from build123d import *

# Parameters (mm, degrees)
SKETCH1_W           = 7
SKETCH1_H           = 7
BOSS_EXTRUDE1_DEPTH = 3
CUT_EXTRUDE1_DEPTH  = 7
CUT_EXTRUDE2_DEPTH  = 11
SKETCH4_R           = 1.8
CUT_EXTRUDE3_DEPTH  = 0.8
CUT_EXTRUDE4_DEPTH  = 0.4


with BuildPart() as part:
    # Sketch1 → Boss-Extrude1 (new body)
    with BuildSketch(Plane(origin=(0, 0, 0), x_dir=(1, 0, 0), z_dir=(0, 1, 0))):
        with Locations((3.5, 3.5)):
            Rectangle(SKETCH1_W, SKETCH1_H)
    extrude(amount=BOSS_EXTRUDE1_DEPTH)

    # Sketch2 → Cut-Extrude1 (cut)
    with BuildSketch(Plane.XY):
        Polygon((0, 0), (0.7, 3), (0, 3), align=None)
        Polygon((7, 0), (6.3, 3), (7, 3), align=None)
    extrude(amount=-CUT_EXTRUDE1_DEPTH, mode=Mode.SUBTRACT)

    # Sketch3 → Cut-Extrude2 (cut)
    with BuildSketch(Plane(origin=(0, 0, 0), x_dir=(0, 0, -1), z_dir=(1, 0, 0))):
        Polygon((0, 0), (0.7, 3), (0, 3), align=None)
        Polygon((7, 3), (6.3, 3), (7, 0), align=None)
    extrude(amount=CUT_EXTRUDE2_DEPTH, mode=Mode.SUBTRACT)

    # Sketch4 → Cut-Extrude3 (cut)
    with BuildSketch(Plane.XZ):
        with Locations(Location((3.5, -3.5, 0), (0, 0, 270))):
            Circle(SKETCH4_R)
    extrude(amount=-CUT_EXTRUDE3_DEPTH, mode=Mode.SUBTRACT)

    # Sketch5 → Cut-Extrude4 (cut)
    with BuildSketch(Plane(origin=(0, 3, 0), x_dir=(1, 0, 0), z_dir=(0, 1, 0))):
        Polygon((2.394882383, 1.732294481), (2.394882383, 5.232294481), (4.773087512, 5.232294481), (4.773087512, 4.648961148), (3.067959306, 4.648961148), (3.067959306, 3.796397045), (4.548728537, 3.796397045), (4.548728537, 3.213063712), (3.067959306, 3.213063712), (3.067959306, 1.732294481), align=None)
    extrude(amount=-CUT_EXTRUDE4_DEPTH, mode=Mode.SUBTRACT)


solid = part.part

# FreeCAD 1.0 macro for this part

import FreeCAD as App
import Part
import Sketcher

V = App.Vector
Q = App.Units.Quantity


def add_polygon(sketch, points):
    """Adds a closed chain of lines whose ends are joined by coincident constraints."""
    first, n = sketch.GeometryCount, len(points)
    for a, b in zip(points, points[1:] + points[:1]):
        sketch.addGeometry(Part.LineSegment(App.Vector(*a, 0), App.Vector(*b, 0)), False)
    for i in range(n):
        sketch.addConstraint(Sketcher.Constraint("Coincident", first + i, 2, first + (i + 1) % n, 1))

doc = App.newDocument("Part")
body = doc.addObject("PartDesign::Body", "Body")

sketch1 = body.newObject("Sketcher::SketchObject", "Sketch")
sketch1.AttachmentSupport = (doc.getObject("XZ_Plane"), [""])
sketch1.MapMode = "FlatFace"
add_polygon(sketch1, [(0, -7), (0, 0), (7, 0), (7, -7)])
sketch1.addConstraint(Sketcher.Constraint("Vertical", 0))
sketch1.addConstraint(Sketcher.Constraint("Horizontal", 1))
sketch1.addConstraint(Sketcher.Constraint("Vertical", 2))
sketch1.addConstraint(Sketcher.Constraint("Horizontal", 3))
sketch1.addConstraint(Sketcher.Constraint("Coincident", 0, 2, -1, 1))
sketch1.addConstraint(Sketcher.Constraint("Equal", 3, 0))
sketch1.addConstraint(Sketcher.Constraint("DistanceX", 1, 1, 1, 2, Q("7 mm")))
pad1 = body.newObject("PartDesign::Pad", "Pad")
pad1.Profile = sketch1
pad1.Length = 3
pad1.Reversed = True

sketch2 = body.newObject("Sketcher::SketchObject", "Sketch001")
sketch2.AttachmentSupport = (doc.getObject("XY_Plane"), [""])
sketch2.MapMode = "FlatFace"
add_polygon(sketch2, [(0, 0), (0.7, 3), (0, 3)])
add_polygon(sketch2, [(6.3, 3), (7, 0), (7, 3)])
sketch2.addConstraint(Sketcher.Constraint("Horizontal", 1))
sketch2.addConstraint(Sketcher.Constraint("Vertical", 2))
sketch2.addConstraint(Sketcher.Constraint("Vertical", 4))
sketch2.addConstraint(Sketcher.Constraint("Horizontal", 5))
sketch2.addConstraint(Sketcher.Constraint("Coincident", 2, 2, -1, 1))
sketch2.addConstraint(Sketcher.Constraint("PointOnObject", 3, 2, -1))
sketch2.addConstraint(Sketcher.Constraint("Horizontal", 1, 2, 4, 2))
sketch2.addConstraint(Sketcher.Constraint("Equal", 1, 5))
sketch2.addConstraint(Sketcher.Constraint("DistanceY", 2, 2, 2, 1, Q("3 mm")))
sketch2.addConstraint(Sketcher.Constraint("DistanceX", 1, 2, 1, 1, Q("0.7 mm")))
sketch2.addConstraint(Sketcher.Constraint("DistanceX", -1, 1, 3, 2, Q("7 mm")))
pocket1 = body.newObject("PartDesign::Pocket", "Pocket")
pocket1.Profile = sketch2
pocket1.Length = 7

sketch3 = body.newObject("Sketcher::SketchObject", "Sketch002")
sketch3.AttachmentSupport = (doc.getObject("YZ_Plane"), [""])
sketch3.MapMode = "FlatFace"
add_polygon(sketch3, [(0, 0), (3, -0.7), (3, 0)])
add_polygon(sketch3, [(3, -7), (3, -6.3), (0, -7)])
sketch3.addConstraint(Sketcher.Constraint("Vertical", 1))
sketch3.addConstraint(Sketcher.Constraint("Horizontal", 2))
sketch3.addConstraint(Sketcher.Constraint("Vertical", 3))
sketch3.addConstraint(Sketcher.Constraint("Horizontal", 5))
sketch3.addConstraint(Sketcher.Constraint("Coincident", 2, 2, -1, 1))
sketch3.addConstraint(Sketcher.Constraint("PointOnObject", 4, 2, -2))
sketch3.addConstraint(Sketcher.Constraint("Vertical", 1, 2, 3, 2))
sketch3.addConstraint(Sketcher.Constraint("Equal", 1, 3))
sketch3.addConstraint(Sketcher.Constraint("DistanceX", 2, 2, 2, 1, Q("3 mm")))
sketch3.addConstraint(Sketcher.Constraint("DistanceY", 1, 1, 1, 2, Q("0.7 mm")))
sketch3.addConstraint(Sketcher.Constraint("DistanceY", 4, 2, -1, 1, Q("7 mm")))
pocket2 = body.newObject("PartDesign::Pocket", "Pocket001")
pocket2.Profile = sketch3
pocket2.Length = 11
pocket2.Reversed = True

sketch4 = body.newObject("Sketcher::SketchObject", "Sketch003")
sketch4.AttachmentSupport = (doc.getObject("XZ_Plane"), [""])
sketch4.MapMode = "FlatFace"
sketch4.addGeometry(Part.Circle(V(3.5, -3.5, 0), V(0, 0, 1), 1.8), False)
sketch4.addConstraint(Sketcher.Constraint("Diameter", 0, Q("3.6 mm")))
sketch4.addConstraint(Sketcher.Constraint("DistanceX", -1, 1, 0, 3, Q("3.5 mm")))
sketch4.addConstraint(Sketcher.Constraint("DistanceY", 0, 3, -1, 1, Q("3.5 mm")))
pocket3 = body.newObject("PartDesign::Pocket", "Pocket002")
pocket3.Profile = sketch4
pocket3.Length = 0.8

sketch5 = body.newObject("Sketcher::SketchObject", "Sketch004")
sketch5.AttachmentSupport = (doc.getObject("XZ_Plane"), [""])
sketch5.MapMode = "FlatFace"
sketch5.AttachmentOffset = App.Placement(V(0, 0, -3), App.Rotation())
add_polygon(sketch5, [(2.4, -5.2), (2.4, -1.7), (3.1, -1.7), (3.1, -3.2), (4.5, -3.2), (4.5, -3.8), (3.1, -3.8), (3.1, -4.6), (4.8, -4.6), (4.8, -5.2)])
sketch5.addConstraint(Sketcher.Constraint("Vertical", 0))
sketch5.addConstraint(Sketcher.Constraint("Horizontal", 1))
sketch5.addConstraint(Sketcher.Constraint("Vertical", 2))
sketch5.addConstraint(Sketcher.Constraint("Horizontal", 3))
sketch5.addConstraint(Sketcher.Constraint("Vertical", 4))
sketch5.addConstraint(Sketcher.Constraint("Horizontal", 5))
sketch5.addConstraint(Sketcher.Constraint("Vertical", 6))
sketch5.addConstraint(Sketcher.Constraint("Horizontal", 7))
sketch5.addConstraint(Sketcher.Constraint("Vertical", 8))
sketch5.addConstraint(Sketcher.Constraint("Horizontal", 9))
sketch5.addConstraint(Sketcher.Constraint("Vertical", 2, 2, 5, 2))
sketch5.addConstraint(Sketcher.Constraint("Equal", 5, 2))
sketch5.addConstraint(Sketcher.Constraint("Equal", 4, 8))
sketch5.addConstraint(Sketcher.Constraint("DistanceY", 0, 1, 0, 2, Q("3.5 mm")))
sketch5.addConstraint(Sketcher.Constraint("DistanceX", 3, 1, 3, 2, Q("1.480769 mm")))
sketch5.addConstraint(Sketcher.Constraint("DistanceX", 7, 1, 7, 2, Q("1.705128 mm")))
sketch5.addConstraint(Sketcher.Constraint("DistanceX", 1, 1, 1, 2, Q("0.673077 mm")))
sketch5.addConstraint(Sketcher.Constraint("DistanceY", 4, 2, 4, 1, Q("0.583333 mm")))
sketch5.addConstraint(Sketcher.Constraint("DistanceX", -1, 1, 1, 2, Q("3.067959 mm")))
sketch5.addConstraint(Sketcher.Constraint("DistanceY", 6, 2, -1, 1, Q("4.648961 mm")))
pocket4 = body.newObject("PartDesign::Pocket", "Pocket003")
pocket4.Profile = sketch5
pocket4.Length = 0.4
pocket4.Reversed = True

doc.recompute()
